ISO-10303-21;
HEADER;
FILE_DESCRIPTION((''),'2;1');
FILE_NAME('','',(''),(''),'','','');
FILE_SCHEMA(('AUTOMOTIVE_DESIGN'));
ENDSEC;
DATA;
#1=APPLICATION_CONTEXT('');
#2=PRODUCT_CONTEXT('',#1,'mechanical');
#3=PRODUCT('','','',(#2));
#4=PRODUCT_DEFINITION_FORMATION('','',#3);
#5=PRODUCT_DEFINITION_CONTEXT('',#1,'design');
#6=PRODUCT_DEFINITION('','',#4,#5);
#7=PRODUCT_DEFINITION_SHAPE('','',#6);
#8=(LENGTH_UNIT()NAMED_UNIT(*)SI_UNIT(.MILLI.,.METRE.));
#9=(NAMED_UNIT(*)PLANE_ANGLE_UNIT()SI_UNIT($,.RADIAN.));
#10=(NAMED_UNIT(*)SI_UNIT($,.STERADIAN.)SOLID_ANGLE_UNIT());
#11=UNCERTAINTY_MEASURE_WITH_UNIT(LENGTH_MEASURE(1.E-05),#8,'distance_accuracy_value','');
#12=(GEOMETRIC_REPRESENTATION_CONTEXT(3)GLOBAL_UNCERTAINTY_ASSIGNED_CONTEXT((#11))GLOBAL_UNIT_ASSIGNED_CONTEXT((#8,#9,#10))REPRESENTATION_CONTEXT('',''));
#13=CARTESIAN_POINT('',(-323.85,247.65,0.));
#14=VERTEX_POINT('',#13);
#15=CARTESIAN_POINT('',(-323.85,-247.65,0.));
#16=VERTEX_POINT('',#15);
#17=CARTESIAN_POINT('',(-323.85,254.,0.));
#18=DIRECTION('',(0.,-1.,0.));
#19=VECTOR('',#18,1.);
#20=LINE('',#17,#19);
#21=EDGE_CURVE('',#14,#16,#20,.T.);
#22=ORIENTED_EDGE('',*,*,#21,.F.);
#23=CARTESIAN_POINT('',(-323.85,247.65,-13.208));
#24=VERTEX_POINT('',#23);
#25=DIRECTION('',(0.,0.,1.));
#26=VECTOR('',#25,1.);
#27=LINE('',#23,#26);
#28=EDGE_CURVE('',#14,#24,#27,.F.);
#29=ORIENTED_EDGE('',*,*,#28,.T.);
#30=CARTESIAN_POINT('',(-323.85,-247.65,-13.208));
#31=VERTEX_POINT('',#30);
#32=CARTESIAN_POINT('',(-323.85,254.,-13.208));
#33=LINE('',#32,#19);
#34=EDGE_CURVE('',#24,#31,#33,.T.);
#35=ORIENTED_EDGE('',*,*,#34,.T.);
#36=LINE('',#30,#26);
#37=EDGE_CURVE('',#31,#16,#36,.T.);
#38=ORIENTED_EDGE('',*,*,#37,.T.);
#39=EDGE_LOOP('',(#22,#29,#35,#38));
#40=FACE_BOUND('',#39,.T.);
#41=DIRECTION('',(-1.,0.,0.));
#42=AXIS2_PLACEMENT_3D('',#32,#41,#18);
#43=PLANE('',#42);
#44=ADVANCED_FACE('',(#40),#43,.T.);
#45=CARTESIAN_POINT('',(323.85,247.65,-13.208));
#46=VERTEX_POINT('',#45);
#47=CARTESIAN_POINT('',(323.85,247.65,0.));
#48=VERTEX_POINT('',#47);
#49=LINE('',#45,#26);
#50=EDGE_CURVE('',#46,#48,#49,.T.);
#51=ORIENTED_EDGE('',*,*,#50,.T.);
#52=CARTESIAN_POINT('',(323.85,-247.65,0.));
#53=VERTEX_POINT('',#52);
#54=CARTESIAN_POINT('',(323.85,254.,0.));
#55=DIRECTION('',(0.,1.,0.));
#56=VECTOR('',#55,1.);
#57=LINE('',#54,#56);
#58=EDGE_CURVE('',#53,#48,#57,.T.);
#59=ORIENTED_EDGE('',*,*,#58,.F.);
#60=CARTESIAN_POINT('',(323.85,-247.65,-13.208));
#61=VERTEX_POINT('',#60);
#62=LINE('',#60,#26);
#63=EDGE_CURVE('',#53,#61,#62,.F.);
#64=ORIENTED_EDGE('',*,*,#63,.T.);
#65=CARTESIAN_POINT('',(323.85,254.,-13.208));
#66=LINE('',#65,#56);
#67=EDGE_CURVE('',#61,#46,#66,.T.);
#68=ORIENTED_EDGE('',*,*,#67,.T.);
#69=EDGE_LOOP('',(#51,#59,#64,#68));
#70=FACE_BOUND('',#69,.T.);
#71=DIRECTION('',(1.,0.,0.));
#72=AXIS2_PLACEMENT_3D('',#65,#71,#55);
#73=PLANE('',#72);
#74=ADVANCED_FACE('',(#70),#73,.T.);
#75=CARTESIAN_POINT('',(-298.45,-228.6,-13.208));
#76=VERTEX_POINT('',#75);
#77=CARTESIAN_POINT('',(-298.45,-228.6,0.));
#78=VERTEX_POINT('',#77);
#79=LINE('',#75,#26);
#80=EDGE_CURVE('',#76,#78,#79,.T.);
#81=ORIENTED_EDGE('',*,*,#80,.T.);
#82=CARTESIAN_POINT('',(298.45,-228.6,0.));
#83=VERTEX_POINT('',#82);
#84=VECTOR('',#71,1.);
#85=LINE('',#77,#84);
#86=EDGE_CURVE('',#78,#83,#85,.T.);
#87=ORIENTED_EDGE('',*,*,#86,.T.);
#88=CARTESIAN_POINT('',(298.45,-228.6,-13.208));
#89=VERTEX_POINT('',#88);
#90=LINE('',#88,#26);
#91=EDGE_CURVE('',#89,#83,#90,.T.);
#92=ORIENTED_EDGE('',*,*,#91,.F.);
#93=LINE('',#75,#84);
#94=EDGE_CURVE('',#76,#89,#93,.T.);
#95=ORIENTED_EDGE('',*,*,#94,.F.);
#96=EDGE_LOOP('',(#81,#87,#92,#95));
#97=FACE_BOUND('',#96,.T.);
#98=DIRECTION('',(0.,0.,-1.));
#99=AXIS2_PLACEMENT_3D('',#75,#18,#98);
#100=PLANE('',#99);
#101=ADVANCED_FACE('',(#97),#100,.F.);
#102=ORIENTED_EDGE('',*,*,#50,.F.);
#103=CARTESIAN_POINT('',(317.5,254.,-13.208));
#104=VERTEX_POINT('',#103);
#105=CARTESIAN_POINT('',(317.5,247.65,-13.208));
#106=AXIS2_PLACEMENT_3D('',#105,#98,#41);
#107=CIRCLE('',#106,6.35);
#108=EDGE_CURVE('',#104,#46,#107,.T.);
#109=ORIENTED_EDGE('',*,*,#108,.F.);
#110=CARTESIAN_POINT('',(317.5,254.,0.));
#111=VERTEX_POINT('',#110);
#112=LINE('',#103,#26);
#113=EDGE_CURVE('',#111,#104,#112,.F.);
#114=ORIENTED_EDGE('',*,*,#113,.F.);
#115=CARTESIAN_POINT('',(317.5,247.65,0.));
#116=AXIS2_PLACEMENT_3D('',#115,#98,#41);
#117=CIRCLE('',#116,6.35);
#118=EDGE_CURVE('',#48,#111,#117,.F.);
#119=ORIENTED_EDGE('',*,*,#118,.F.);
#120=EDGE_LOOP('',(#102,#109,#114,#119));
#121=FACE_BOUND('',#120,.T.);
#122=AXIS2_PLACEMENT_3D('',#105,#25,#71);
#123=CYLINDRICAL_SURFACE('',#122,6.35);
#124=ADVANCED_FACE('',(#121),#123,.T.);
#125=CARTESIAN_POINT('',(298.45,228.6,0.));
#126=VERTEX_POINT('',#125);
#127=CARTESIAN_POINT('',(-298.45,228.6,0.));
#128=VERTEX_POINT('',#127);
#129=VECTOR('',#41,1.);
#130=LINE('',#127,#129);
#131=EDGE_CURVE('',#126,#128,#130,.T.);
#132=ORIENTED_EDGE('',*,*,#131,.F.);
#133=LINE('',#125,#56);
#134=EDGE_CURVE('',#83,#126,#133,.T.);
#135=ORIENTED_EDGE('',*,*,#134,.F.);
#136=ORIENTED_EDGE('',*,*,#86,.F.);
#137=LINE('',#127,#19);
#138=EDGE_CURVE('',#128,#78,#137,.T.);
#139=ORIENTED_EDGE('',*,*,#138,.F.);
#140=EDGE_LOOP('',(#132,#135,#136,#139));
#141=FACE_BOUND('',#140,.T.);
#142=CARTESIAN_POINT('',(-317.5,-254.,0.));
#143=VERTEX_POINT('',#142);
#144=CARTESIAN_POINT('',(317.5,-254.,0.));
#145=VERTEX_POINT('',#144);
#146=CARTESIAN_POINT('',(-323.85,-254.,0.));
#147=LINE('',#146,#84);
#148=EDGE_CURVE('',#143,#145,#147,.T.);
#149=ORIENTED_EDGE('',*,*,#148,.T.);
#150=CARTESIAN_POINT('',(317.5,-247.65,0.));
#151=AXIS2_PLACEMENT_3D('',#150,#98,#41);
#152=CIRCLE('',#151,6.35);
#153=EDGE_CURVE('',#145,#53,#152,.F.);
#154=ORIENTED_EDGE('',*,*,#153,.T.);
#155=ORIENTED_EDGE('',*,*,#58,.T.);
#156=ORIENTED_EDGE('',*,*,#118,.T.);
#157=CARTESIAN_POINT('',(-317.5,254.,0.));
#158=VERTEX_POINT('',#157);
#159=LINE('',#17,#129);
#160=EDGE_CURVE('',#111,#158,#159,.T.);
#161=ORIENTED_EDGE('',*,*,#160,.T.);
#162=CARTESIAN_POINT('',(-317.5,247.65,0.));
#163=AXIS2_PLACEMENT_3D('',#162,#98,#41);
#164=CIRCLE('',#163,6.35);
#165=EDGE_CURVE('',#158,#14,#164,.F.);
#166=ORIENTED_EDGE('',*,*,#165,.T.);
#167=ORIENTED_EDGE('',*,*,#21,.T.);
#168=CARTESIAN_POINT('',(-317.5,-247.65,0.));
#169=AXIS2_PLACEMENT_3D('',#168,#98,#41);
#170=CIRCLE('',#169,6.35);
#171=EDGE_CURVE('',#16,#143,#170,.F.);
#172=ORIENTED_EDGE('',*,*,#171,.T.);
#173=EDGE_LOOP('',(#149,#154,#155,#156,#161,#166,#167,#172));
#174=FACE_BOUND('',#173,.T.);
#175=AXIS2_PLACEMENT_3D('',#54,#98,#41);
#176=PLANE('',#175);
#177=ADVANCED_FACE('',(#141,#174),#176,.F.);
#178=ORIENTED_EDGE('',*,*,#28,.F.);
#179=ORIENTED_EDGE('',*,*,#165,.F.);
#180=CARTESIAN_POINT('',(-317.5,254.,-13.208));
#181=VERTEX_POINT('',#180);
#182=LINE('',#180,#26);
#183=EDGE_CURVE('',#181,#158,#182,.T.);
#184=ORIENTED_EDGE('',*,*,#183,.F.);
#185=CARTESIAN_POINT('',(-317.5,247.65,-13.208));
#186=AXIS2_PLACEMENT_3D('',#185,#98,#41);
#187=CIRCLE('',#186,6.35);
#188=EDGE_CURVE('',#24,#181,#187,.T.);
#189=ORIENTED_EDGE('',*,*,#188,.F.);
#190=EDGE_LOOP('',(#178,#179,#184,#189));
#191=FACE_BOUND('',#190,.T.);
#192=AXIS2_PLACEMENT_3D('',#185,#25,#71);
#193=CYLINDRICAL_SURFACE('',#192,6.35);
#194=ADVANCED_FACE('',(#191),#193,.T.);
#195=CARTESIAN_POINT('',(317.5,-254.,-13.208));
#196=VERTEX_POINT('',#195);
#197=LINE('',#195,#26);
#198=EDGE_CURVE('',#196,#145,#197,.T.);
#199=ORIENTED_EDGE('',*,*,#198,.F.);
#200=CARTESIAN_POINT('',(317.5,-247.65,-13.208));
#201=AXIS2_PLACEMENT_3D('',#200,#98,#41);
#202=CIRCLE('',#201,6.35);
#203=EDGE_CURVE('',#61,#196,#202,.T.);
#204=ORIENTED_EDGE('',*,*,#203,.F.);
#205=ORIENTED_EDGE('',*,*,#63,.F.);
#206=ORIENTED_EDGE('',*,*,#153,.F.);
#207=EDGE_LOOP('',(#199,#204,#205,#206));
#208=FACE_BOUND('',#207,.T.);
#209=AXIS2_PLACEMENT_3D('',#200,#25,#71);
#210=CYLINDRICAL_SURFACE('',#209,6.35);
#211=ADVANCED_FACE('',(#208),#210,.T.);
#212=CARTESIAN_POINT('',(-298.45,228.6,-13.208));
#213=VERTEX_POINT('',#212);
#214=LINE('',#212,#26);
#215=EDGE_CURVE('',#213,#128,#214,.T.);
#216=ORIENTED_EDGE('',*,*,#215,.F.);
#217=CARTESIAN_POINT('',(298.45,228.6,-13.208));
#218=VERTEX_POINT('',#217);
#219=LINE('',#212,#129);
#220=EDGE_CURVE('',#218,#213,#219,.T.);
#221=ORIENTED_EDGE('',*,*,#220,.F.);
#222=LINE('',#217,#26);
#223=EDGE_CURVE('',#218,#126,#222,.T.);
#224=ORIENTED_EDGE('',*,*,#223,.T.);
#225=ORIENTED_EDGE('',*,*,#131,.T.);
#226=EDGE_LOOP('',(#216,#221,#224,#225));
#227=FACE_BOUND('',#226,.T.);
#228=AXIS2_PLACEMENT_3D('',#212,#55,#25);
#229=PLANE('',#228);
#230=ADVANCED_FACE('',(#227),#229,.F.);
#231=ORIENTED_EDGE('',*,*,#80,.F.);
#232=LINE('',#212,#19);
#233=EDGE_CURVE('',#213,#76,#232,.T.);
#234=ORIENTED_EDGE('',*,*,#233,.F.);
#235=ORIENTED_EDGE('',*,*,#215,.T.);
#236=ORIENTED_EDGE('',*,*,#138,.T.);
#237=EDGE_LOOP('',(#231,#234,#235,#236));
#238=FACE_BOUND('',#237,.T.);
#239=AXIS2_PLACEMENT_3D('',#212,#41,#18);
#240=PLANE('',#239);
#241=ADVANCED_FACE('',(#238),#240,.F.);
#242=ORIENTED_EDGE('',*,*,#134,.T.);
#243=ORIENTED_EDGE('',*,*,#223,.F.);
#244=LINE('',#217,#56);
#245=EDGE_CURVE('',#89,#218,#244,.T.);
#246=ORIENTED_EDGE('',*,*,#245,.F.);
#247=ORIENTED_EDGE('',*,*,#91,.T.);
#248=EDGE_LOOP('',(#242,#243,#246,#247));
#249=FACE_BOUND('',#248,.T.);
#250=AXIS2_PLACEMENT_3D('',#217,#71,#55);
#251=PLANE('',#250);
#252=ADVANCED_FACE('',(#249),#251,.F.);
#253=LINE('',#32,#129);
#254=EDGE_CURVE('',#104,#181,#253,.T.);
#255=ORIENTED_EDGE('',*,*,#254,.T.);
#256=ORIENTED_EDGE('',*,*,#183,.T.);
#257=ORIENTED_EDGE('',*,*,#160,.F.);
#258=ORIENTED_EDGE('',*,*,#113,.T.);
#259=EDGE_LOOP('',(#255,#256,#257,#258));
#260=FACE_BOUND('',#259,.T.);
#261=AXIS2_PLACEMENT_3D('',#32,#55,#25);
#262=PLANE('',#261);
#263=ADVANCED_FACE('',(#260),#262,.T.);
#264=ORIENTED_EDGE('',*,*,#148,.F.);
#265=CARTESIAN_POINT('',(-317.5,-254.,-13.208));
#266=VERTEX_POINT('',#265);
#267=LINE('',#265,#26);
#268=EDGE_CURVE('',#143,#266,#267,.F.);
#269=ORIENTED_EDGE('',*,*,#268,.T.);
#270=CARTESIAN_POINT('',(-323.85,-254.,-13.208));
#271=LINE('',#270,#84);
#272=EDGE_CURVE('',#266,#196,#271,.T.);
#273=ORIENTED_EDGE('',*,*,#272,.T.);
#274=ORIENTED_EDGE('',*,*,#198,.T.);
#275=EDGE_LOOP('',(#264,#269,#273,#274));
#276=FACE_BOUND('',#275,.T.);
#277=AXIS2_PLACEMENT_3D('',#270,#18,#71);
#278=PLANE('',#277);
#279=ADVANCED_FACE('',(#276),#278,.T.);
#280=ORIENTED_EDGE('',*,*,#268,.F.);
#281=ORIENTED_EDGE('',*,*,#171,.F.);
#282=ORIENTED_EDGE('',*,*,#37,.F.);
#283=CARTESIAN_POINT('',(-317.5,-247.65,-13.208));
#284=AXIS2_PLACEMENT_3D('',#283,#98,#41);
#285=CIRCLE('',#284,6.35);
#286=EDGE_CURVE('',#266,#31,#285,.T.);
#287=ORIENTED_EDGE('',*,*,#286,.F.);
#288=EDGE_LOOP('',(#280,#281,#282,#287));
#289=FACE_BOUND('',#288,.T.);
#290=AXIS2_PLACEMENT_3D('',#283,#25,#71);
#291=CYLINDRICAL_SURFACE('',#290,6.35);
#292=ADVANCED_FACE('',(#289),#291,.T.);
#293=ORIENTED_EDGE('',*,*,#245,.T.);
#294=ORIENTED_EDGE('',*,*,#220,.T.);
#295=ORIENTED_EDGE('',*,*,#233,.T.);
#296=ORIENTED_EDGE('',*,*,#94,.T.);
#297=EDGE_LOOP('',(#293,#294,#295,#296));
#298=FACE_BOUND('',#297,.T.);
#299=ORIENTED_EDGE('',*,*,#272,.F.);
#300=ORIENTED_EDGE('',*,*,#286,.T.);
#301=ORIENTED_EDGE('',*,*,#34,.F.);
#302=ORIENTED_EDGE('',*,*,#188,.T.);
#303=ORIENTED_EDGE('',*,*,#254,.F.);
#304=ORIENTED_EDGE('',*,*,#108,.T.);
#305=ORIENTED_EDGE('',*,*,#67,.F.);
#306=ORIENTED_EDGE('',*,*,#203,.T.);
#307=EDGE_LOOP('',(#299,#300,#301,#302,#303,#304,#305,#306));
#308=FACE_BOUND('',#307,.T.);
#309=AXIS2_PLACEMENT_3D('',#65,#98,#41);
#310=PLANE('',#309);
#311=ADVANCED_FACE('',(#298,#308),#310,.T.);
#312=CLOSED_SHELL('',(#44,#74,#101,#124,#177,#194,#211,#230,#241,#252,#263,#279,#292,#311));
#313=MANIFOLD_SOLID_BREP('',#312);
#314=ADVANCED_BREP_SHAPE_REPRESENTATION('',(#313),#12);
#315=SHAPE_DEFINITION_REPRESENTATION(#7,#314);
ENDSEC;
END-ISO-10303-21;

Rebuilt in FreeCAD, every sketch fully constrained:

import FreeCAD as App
import Part
import Sketcher

V = App.Vector
Q = App.Units.Quantity


def edges_at(feature, points):
    """Names of the edges that pass closest to the given points."""
    edges = feature.Shape.Edges
    near = lambda p: min(range(len(edges)), key=lambda i: edges[i].distToShape(Part.Vertex(*p))[0])
    return sorted({f"Edge{near(p) + 1}" for p in points})

doc = App.newDocument("Part")
body = doc.addObject("PartDesign::Body", "Body")

# Sketch on XY plane
sketch1 = body.newObject("Sketcher::SketchObject", "Sketch")
sketch1.AttachmentSupport = (doc.getObject("XY_Plane"), [""])
sketch1.MapMode = "FlatFace"
sketch1.addGeometry([
    Part.LineSegment(V(-324, 254, 0), V(-324, -254, 0)),  # 0
    Part.LineSegment(V(-324, -254, 0), V(324, -254, 0)),  # 1
    Part.LineSegment(V(324, -254, 0), V(324, 254, 0)),  # 2
    Part.LineSegment(V(324, 254, 0), V(-324, 254, 0)),  # 3
    Part.LineSegment(V(298, -229, 0), V(-298, -229, 0)),  # 4
    Part.LineSegment(V(-298, -229, 0), V(-298, 229, 0)),  # 5
    Part.LineSegment(V(-298, 229, 0), V(298, 229, 0)),  # 6
    Part.LineSegment(V(298, 229, 0), V(298, -229, 0)),  # 7
], False)
sketch1.addConstraint([
    Sketcher.Constraint("Coincident", 0, 2, 1, 1),
    Sketcher.Constraint("Coincident", 1, 2, 2, 1),
    Sketcher.Constraint("Coincident", 2, 2, 3, 1),
    Sketcher.Constraint("Coincident", 3, 2, 0, 1),
    Sketcher.Constraint("Coincident", 4, 2, 5, 1),
    Sketcher.Constraint("Coincident", 5, 2, 6, 1),
    Sketcher.Constraint("Coincident", 6, 2, 7, 1),
    Sketcher.Constraint("Coincident", 7, 2, 4, 1),
    Sketcher.Constraint("Vertical", 0),
    Sketcher.Constraint("Horizontal", 1),
    Sketcher.Constraint("Vertical", 2),
    Sketcher.Constraint("Horizontal", 3),
    Sketcher.Constraint("Horizontal", 4),
    Sketcher.Constraint("Vertical", 5),
    Sketcher.Constraint("Horizontal", 6),
    Sketcher.Constraint("Vertical", 7),
    Sketcher.Constraint("Symmetric", 0, 2, 2, 2, -1, 1),
    Sketcher.Constraint("Symmetric", 4, 2, 6, 2, -1, 1),
    Sketcher.Constraint("DistanceY", 0, 2, 0, 1, Q("20 in")),
    Sketcher.Constraint("DistanceY", 5, 1, 5, 2, Q("18 in")),
    Sketcher.Constraint("DistanceX", 1, 1, 1, 2, Q("25.5 in")),
    Sketcher.Constraint("DistanceX", 4, 2, 4, 1, Q("23.5 in")),
])
pad1 = body.newObject("PartDesign::Pad", "Pad")
pad1.Profile = sketch1
pad1.Length = Q("0.52 in")
pad1.Reversed = True
doc.recompute()

fillet = body.newObject("PartDesign::Fillet", "Fillet")
fillet.Base = (pad1, edges_at(pad1, [
    (323.85, 254, -6.604),
    (323.85, -254, -6.604),
    (-323.85, -254, -6.604),
    (-323.85, 254, -6.604),
]))
fillet.Radius = Q("0.25 in")

doc.recompute()
